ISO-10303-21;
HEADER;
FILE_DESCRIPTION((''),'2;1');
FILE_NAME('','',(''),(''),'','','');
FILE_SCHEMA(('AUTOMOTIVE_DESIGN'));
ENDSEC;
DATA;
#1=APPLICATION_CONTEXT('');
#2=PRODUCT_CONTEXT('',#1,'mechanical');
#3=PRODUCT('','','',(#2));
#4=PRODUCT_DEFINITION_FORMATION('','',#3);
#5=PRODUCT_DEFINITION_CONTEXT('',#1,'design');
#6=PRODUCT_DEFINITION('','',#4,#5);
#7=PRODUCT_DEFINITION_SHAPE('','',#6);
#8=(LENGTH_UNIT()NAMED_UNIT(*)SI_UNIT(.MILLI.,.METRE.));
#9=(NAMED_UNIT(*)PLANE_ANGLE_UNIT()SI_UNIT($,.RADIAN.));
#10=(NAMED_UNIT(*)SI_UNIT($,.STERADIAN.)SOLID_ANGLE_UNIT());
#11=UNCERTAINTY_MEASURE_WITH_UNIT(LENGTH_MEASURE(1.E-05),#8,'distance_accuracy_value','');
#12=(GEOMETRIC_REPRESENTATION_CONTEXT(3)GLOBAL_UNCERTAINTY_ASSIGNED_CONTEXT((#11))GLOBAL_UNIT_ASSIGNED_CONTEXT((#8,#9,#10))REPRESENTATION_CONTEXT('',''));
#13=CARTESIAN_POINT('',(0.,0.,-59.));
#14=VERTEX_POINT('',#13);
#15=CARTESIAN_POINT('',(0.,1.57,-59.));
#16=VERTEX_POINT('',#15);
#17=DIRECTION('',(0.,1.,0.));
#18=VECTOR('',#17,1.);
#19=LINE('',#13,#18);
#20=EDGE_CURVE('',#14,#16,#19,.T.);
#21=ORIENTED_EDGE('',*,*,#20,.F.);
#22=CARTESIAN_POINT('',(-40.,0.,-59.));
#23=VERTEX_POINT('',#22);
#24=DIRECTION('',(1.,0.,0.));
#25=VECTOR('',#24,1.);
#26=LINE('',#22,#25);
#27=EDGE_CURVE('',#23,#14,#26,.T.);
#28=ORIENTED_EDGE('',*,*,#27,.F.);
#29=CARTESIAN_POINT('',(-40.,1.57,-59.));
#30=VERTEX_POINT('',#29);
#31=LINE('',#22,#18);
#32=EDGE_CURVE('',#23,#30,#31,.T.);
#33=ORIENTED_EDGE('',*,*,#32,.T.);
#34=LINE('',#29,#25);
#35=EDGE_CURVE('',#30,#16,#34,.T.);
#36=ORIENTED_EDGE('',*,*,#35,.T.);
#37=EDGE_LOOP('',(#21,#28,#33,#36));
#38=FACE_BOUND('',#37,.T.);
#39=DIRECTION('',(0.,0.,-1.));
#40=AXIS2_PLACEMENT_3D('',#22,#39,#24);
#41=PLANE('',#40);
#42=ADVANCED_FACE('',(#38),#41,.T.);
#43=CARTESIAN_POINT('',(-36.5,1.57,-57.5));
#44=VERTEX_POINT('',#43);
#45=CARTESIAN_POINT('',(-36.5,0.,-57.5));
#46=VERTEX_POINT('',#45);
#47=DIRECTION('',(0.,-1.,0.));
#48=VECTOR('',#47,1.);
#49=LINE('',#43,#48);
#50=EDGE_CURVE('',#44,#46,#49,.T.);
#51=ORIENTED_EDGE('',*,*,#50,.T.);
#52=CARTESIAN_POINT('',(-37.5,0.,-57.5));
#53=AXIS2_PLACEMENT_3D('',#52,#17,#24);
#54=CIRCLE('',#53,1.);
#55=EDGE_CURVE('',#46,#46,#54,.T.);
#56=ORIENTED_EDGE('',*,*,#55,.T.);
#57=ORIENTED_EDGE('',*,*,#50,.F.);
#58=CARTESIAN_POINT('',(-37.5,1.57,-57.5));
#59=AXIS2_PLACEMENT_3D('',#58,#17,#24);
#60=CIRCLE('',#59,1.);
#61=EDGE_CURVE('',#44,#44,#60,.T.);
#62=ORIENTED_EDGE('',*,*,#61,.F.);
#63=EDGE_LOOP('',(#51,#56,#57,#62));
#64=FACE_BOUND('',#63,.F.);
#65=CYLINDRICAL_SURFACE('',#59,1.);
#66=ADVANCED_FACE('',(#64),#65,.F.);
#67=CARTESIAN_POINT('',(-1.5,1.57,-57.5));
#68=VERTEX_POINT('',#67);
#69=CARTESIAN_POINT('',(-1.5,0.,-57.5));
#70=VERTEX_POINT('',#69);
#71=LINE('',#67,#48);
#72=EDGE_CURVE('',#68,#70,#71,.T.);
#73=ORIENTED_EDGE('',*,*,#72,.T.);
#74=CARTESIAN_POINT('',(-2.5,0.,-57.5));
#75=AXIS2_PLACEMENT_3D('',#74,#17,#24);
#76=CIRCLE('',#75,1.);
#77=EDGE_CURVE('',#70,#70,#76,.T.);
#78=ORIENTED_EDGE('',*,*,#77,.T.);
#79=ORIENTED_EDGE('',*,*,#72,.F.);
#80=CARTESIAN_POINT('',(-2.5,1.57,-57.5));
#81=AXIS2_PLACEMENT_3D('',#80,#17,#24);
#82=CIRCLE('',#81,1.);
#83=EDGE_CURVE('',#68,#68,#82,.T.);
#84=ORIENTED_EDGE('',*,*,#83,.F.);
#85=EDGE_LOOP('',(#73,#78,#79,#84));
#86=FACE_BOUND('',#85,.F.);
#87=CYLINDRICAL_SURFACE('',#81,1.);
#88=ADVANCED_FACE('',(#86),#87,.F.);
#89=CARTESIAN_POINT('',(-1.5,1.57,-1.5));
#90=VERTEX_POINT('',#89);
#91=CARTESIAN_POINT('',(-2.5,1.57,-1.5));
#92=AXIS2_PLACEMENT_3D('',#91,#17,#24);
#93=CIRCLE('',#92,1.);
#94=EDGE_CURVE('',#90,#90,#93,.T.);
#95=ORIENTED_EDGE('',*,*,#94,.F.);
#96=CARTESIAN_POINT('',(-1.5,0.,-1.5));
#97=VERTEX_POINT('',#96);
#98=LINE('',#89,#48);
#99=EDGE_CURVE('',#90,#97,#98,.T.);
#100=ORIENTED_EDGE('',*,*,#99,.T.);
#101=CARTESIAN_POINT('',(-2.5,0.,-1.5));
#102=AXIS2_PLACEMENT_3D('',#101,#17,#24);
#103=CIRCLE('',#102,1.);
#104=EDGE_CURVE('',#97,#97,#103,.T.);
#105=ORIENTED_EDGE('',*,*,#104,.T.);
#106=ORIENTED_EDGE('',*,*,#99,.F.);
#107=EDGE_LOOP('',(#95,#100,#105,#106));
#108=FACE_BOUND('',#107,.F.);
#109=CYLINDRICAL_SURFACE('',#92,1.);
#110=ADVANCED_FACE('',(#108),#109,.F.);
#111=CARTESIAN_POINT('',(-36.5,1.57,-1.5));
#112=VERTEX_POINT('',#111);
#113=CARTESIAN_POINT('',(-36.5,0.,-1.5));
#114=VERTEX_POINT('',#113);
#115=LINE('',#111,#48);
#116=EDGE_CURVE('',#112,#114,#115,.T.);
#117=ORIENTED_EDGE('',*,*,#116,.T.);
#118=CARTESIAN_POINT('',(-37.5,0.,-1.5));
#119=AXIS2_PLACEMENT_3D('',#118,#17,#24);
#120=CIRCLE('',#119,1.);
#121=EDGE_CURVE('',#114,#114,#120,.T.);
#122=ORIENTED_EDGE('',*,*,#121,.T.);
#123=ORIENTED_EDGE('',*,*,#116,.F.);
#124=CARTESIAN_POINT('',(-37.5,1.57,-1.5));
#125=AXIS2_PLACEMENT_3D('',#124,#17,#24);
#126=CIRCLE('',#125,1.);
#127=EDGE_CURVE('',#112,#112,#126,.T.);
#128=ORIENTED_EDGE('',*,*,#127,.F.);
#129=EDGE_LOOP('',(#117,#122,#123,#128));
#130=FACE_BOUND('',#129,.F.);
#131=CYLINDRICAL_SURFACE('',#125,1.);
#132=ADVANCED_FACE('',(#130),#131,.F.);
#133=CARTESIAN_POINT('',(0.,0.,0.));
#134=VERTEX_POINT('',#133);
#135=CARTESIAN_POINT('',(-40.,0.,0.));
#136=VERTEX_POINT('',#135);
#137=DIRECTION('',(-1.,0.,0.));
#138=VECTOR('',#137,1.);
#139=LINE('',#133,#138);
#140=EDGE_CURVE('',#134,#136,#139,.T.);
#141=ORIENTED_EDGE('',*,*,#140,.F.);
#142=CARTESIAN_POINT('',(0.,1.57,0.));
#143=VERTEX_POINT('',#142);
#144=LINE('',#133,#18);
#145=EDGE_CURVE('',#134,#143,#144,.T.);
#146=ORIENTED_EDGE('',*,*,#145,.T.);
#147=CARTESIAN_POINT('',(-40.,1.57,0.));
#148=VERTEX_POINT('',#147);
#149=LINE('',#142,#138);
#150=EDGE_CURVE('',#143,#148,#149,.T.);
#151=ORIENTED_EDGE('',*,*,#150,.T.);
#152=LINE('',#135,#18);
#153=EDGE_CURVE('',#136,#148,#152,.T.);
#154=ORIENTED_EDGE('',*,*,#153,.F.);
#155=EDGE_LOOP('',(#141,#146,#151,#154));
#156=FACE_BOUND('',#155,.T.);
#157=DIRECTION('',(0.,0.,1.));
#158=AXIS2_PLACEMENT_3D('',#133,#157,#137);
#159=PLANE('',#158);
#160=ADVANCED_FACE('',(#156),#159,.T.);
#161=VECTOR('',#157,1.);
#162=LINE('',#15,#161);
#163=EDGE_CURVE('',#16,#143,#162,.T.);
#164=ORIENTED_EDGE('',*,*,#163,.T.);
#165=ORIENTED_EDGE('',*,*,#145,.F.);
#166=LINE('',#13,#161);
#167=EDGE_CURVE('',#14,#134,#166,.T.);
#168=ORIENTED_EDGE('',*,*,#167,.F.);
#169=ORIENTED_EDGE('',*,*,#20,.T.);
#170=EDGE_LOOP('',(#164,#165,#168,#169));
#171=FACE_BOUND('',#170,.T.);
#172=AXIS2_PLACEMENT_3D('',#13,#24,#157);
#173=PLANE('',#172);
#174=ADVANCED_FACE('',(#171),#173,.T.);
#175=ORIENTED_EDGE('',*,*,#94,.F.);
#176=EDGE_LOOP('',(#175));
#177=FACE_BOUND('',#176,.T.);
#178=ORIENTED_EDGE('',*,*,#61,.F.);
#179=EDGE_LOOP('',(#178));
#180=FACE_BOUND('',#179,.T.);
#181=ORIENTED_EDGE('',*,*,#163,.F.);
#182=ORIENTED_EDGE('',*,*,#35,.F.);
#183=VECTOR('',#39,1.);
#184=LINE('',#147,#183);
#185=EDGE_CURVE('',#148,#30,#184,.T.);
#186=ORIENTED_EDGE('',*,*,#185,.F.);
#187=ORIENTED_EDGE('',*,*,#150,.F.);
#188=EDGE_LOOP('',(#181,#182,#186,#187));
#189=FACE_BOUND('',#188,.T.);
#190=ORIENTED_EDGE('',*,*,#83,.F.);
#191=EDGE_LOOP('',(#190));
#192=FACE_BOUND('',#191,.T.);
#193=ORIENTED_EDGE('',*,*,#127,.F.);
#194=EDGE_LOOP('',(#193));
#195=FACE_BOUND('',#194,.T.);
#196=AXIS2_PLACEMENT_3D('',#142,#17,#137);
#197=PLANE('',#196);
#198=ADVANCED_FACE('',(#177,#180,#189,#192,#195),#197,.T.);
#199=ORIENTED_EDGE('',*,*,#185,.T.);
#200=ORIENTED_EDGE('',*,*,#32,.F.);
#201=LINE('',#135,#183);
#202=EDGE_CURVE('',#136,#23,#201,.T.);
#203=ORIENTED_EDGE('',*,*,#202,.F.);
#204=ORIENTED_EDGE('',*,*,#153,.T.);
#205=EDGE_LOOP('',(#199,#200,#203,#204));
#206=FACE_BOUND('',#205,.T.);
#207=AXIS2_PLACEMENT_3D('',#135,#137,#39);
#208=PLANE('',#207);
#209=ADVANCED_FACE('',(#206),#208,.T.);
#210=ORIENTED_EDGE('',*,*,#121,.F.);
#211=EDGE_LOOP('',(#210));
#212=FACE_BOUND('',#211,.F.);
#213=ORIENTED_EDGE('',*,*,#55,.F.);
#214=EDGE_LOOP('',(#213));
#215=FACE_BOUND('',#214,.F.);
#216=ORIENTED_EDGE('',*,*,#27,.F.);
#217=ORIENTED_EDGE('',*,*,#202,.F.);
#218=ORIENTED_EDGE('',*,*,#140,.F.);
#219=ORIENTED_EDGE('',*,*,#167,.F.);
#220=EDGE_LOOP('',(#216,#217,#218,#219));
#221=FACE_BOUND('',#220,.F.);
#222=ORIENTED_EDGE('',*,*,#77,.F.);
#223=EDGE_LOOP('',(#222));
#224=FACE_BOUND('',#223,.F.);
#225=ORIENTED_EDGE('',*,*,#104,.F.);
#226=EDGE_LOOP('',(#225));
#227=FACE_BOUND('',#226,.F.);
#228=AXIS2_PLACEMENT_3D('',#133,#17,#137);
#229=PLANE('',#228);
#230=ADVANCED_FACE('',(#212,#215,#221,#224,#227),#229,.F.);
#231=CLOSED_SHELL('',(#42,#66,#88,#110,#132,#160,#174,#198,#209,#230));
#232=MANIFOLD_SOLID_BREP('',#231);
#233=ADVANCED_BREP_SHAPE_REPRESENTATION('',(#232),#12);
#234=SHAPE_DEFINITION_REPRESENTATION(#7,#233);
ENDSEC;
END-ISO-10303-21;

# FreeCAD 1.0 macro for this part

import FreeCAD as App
import Part
import Sketcher

V = App.Vector

doc = App.newDocument("Part")
body = doc.addObject("PartDesign::Body", "Body")

sketch1 = body.newObject("Sketcher::SketchObject", "Sketch")
sketch1.AttachmentSupport = (doc.getObject("XZ_Plane"), [""])
sketch1.MapMode = "FlatFace"
sketch1.addGeometry([
    Part.LineSegment(V(-40, 0, 0), V(0, 0, 0)),
    Part.LineSegment(V(0, 0, 0), V(0, -59, 0)),
    Part.LineSegment(V(0, -59, 0), V(-40, -59, 0)),
    Part.LineSegment(V(-40, -59, 0), V(-40, 0, 0)),
], False)
sketch1.addConstraint([
    Sketcher.Constraint("Coincident", 0, 2, 1, 1),
    Sketcher.Constraint("Coincident", 1, 2, 2, 1),
    Sketcher.Constraint("Coincident", 2, 2, 3, 1),
    Sketcher.Constraint("Coincident", 3, 2, 0, 1),
    Sketcher.Constraint("Horizontal", 0),
    Sketcher.Constraint("Vertical", 1),
    Sketcher.Constraint("Horizontal", 2),
    Sketcher.Constraint("Vertical", 3),
    Sketcher.Constraint("Coincident", 0, 2, -1, 1),
    Sketcher.Constraint("DistanceX", 0, 1, 0, 2, 40.0),
    Sketcher.Constraint("DistanceY", 1, 2, 1, 1, 59.0),
])
pad1 = body.newObject("PartDesign::Pad", "Pad")
pad1.Profile = sketch1
pad1.Length = 1.57
pad1.Reversed = True

sketch2 = body.newObject("Sketcher::SketchObject", "Sketch001")
sketch2.AttachmentSupport = (doc.getObject("XZ_Plane"), [""])
sketch2.MapMode = "FlatFace"
sketch2.AttachmentOffset = App.Placement(V(0, 0, -1.57), App.Rotation())
sketch2.addGeometry([
    Part.Circle(V(-37.5, -1.5, 0), V(0, 0, 1), 1),
    Part.Circle(V(-37.5, -57.5, 0), V(0, 0, 1), 1),
    Part.Circle(V(-2.5, -1.5, 0), V(0, 0, 1), 1),
    Part.Circle(V(-2.5, -57.5, 0), V(0, 0, 1), 1),
], False)
sketch2.addConstraint([
    Sketcher.Constraint("Equal", 0, 1),
    Sketcher.Constraint("Equal", 1, 2),
    Sketcher.Constraint("Equal", 2, 3),
    Sketcher.Constraint("Horizontal", 0, 3, 2, 3),
    Sketcher.Constraint("Horizontal", 1, 3, 3, 3),
    Sketcher.Constraint("Vertical", 0, 3, 1, 3),
    Sketcher.Constraint("Vertical", 2, 3, 3, 3),
    Sketcher.Constraint("Diameter", 0, 2.0),
    Sketcher.Constraint("DistanceY", 0, 3, -1, 1, 1.5),
    Sketcher.Constraint("DistanceX", 2, 3, -1, 1, 2.5),
    Sketcher.Constraint("DistanceY", 1, 3, 0, 3, 56.0),
    Sketcher.Constraint("DistanceX", 0, 3, 2, 3, 35.0),
])
pocket1 = body.newObject("PartDesign::Pocket", "Pocket")
pocket1.Profile = sketch2
pocket1.Length = 2
pocket1.Reversed = True

doc.recompute()
